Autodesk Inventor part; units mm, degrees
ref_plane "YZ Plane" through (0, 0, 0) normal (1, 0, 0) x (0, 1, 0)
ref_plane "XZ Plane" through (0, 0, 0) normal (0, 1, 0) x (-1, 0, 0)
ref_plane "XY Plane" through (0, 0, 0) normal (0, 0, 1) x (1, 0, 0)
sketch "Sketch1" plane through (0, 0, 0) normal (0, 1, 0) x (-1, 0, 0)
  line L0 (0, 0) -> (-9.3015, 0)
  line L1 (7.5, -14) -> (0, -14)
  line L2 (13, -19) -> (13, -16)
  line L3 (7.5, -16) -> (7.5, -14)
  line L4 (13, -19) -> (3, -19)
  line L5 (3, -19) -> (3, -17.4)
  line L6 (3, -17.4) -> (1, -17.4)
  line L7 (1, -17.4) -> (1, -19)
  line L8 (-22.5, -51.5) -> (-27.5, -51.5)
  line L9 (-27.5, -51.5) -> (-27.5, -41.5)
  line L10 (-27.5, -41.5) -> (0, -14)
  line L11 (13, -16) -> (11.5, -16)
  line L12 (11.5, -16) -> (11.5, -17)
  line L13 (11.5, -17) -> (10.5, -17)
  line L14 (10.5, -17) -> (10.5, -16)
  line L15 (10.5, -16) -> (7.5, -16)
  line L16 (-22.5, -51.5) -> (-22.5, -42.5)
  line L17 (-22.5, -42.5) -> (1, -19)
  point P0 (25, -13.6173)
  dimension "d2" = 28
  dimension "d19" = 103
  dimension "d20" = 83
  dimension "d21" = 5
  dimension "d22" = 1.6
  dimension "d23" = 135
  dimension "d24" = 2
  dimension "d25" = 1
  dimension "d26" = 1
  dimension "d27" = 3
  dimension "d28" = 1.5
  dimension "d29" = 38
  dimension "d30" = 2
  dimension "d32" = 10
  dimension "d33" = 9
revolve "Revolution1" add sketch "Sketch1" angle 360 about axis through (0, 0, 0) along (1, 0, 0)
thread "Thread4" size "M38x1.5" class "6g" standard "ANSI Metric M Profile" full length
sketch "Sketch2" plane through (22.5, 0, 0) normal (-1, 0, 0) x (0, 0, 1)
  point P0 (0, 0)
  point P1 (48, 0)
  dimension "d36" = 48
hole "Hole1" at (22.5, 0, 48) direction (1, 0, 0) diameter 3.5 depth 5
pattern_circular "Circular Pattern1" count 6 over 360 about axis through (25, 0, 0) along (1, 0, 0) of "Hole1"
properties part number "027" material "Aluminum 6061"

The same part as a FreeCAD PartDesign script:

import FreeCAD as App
import Part
import Sketcher
from FreeCAD import Vector
Q = App.Units.Quantity

doc = App.newDocument("Part")
body = doc.addObject("PartDesign::Body", "Body")

# Sketch on XZ plane
sketch1 = doc.addObject("Sketcher::SketchObject", "Sketch")
body.addObject(sketch1)
sketch1.AttachmentSupport = (doc.XZ_Plane, [""])
sketch1.MapMode = "FlatFace"
sketch1.addGeometry([
    Part.LineSegment(Vector(-7.5, -16, 0), Vector(-7.5, -14, 0)),  # 0
    Part.LineSegment(Vector(-7.5, -14, 0), Vector(0, -14, 0)),  # 1
    Part.LineSegment(Vector(0, -14, 0), Vector(27.5, -41.5, 0)),  # 2
    Part.LineSegment(Vector(27.5, -41.5, 0), Vector(27.5, -51.5, 0)),  # 3
    Part.LineSegment(Vector(27.5, -51.5, 0), Vector(22.5, -51.5, 0)),  # 4
    Part.LineSegment(Vector(22.5, -51.5, 0), Vector(22.5, -42.5, 0)),  # 5
    Part.LineSegment(Vector(22.5, -42.5, 0), Vector(-1, -19, 0)),  # 6
    Part.LineSegment(Vector(-1, -19, 0), Vector(-1, -17.4, 0)),  # 7
    Part.LineSegment(Vector(-1, -17.4, 0), Vector(-3, -17.4, 0)),  # 8
    Part.LineSegment(Vector(-3, -17.4, 0), Vector(-3, -19, 0)),  # 9
    Part.LineSegment(Vector(-3, -19, 0), Vector(-13, -19, 0)),  # 10
    Part.LineSegment(Vector(-13, -19, 0), Vector(-13, -16, 0)),  # 11
    Part.LineSegment(Vector(-13, -16, 0), Vector(-11.5, -16, 0)),  # 12
    Part.LineSegment(Vector(-11.5, -16, 0), Vector(-11.5, -17, 0)),  # 13
    Part.LineSegment(Vector(-11.5, -17, 0), Vector(-10.5, -17, 0)),  # 14
    Part.LineSegment(Vector(-10.5, -17, 0), Vector(-10.5, -16, 0)),  # 15
    Part.LineSegment(Vector(-10.5, -16, 0), Vector(-7.5, -16, 0)),  # 16
], False)
sketch1.addConstraint([
    Sketcher.Constraint("Coincident", 0, 2, 1, 1),
    Sketcher.Constraint("Coincident", 1, 2, 2, 1),
    Sketcher.Constraint("Coincident", 2, 2, 3, 1),
    Sketcher.Constraint("Coincident", 3, 2, 4, 1),
    Sketcher.Constraint("Coincident", 4, 2, 5, 1),
    Sketcher.Constraint("Coincident", 5, 2, 6, 1),
    Sketcher.Constraint("Coincident", 6, 2, 7, 1),
    Sketcher.Constraint("Coincident", 7, 2, 8, 1),
    Sketcher.Constraint("Coincident", 8, 2, 9, 1),
    Sketcher.Constraint("Coincident", 9, 2, 10, 1),
    Sketcher.Constraint("Coincident", 10, 2, 11, 1),
    Sketcher.Constraint("Coincident", 11, 2, 12, 1),
    Sketcher.Constraint("Coincident", 12, 2, 13, 1),
    Sketcher.Constraint("Coincident", 13, 2, 14, 1),
    Sketcher.Constraint("Coincident", 14, 2, 15, 1),
    Sketcher.Constraint("Coincident", 15, 2, 16, 1),
    Sketcher.Constraint("Coincident", 16, 2, 0, 1),
    Sketcher.Constraint("Vertical", 0),
    Sketcher.Constraint("Horizontal", 1),
    Sketcher.Constraint("Vertical", 3),
    Sketcher.Constraint("Horizontal", 4),
    Sketcher.Constraint("Vertical", 5),
    Sketcher.Constraint("Vertical", 7),
    Sketcher.Constraint("Horizontal", 8),
    Sketcher.Constraint("Vertical", 9),
    Sketcher.Constraint("Horizontal", 10),
    Sketcher.Constraint("Vertical", 11),
    Sketcher.Constraint("Horizontal", 12),
    Sketcher.Constraint("Vertical", 13),
    Sketcher.Constraint("Horizontal", 14),
    Sketcher.Constraint("Vertical", 15),
    Sketcher.Constraint("Horizontal", 16),
    Sketcher.Constraint("PointOnObject", 1, 2, -2),
    Sketcher.Constraint("Parallel", 2, 6),
    Sketcher.Constraint("Horizontal", 6, 2, 9, 2),
    Sketcher.Constraint("Horizontal", 12, 2, 15, 2),
    Sketcher.Constraint("Equal", 8, 0),
    Sketcher.Constraint("Equal", 10, 3),
    Sketcher.Constraint("Equal", 16, 11),
    Sketcher.Constraint("Equal", 14, 13),
    Sketcher.Constraint("DistanceX", 4, 2, 4, 1, Q("5 mm")),
    Sketcher.Constraint("DistanceX", 8, 2, 8, 1, Q("2 mm")),
    Sketcher.Constraint("DistanceX", 10, 2, 10, 1, Q("10 mm")),
    Sketcher.Constraint("DistanceX", 14, 1, 14, 2, Q("1 mm")),
    Sketcher.Constraint("DistanceX", 16, 1, 16, 2, Q("3 mm")),
    Sketcher.Constraint("DistanceY", 5, 1, 5, 2, Q("9 mm")),
    Sketcher.Constraint("Angle", 6, Q("135 deg")),
    Sketcher.Constraint("DistanceX", 12, 1, 12, 2, Q("1.5 mm")),
    Sketcher.Constraint("DistanceY", 7, 1, 7, 2, Q("1.6 mm")),
    Sketcher.Constraint("DistanceY", 0, 2, -1, 1, Q("14 mm")),
    Sketcher.Constraint("DistanceX", 0, 2, 2, 2, Q("35 mm")),
])
revolution = doc.addObject("PartDesign::Revolution", "Revolution")
body.addObject(revolution)
revolution.Profile = sketch1
revolution.ReferenceAxis = (sketch1, ["H_Axis"])
revolution.Angle = 360

# Sketch on YZ plane
sketch2 = doc.addObject("Sketcher::SketchObject", "Sketch001")
body.addObject(sketch2)
sketch2.AttachmentSupport = (doc.YZ_Plane, [""])
sketch2.MapMode = "FlatFace"
sketch2.AttachmentOffset = App.Placement(Vector(0, 0, 22.5), App.Rotation())
sketch2.addGeometry(Part.Circle(Vector(0, 48, 0), Vector(0, 0, 1), 1.75), False)
sketch2.addConstraint([
    Sketcher.Constraint("PointOnObject", 0, 3, -2),
    Sketcher.Constraint("Diameter", 0, Q("3.5 mm")),
    Sketcher.Constraint("DistanceY", -1, 1, 0, 3, Q("48 mm")),
])
doc.recompute()
hole = doc.addObject("PartDesign::Hole", "Hole")
body.addObject(hole)
hole.Profile = sketch2
hole.ThreadType = "None"
hole.Diameter = 3.5
hole.DepthType = "Dimension"
hole.Depth = 5
hole.DrillPoint = "Flat"
hole.Reversed = True
doc.recompute()

polarpattern = doc.addObject("PartDesign::PolarPattern", "PolarPattern")
body.addObject(polarpattern)
polarpattern.Originals = [hole]
polarpattern.Axis = (doc.X_Axis, [""])
polarpattern.Angle = 360
polarpattern.Occurrences = 6
body.Tip = polarpattern

doc.recompute()
